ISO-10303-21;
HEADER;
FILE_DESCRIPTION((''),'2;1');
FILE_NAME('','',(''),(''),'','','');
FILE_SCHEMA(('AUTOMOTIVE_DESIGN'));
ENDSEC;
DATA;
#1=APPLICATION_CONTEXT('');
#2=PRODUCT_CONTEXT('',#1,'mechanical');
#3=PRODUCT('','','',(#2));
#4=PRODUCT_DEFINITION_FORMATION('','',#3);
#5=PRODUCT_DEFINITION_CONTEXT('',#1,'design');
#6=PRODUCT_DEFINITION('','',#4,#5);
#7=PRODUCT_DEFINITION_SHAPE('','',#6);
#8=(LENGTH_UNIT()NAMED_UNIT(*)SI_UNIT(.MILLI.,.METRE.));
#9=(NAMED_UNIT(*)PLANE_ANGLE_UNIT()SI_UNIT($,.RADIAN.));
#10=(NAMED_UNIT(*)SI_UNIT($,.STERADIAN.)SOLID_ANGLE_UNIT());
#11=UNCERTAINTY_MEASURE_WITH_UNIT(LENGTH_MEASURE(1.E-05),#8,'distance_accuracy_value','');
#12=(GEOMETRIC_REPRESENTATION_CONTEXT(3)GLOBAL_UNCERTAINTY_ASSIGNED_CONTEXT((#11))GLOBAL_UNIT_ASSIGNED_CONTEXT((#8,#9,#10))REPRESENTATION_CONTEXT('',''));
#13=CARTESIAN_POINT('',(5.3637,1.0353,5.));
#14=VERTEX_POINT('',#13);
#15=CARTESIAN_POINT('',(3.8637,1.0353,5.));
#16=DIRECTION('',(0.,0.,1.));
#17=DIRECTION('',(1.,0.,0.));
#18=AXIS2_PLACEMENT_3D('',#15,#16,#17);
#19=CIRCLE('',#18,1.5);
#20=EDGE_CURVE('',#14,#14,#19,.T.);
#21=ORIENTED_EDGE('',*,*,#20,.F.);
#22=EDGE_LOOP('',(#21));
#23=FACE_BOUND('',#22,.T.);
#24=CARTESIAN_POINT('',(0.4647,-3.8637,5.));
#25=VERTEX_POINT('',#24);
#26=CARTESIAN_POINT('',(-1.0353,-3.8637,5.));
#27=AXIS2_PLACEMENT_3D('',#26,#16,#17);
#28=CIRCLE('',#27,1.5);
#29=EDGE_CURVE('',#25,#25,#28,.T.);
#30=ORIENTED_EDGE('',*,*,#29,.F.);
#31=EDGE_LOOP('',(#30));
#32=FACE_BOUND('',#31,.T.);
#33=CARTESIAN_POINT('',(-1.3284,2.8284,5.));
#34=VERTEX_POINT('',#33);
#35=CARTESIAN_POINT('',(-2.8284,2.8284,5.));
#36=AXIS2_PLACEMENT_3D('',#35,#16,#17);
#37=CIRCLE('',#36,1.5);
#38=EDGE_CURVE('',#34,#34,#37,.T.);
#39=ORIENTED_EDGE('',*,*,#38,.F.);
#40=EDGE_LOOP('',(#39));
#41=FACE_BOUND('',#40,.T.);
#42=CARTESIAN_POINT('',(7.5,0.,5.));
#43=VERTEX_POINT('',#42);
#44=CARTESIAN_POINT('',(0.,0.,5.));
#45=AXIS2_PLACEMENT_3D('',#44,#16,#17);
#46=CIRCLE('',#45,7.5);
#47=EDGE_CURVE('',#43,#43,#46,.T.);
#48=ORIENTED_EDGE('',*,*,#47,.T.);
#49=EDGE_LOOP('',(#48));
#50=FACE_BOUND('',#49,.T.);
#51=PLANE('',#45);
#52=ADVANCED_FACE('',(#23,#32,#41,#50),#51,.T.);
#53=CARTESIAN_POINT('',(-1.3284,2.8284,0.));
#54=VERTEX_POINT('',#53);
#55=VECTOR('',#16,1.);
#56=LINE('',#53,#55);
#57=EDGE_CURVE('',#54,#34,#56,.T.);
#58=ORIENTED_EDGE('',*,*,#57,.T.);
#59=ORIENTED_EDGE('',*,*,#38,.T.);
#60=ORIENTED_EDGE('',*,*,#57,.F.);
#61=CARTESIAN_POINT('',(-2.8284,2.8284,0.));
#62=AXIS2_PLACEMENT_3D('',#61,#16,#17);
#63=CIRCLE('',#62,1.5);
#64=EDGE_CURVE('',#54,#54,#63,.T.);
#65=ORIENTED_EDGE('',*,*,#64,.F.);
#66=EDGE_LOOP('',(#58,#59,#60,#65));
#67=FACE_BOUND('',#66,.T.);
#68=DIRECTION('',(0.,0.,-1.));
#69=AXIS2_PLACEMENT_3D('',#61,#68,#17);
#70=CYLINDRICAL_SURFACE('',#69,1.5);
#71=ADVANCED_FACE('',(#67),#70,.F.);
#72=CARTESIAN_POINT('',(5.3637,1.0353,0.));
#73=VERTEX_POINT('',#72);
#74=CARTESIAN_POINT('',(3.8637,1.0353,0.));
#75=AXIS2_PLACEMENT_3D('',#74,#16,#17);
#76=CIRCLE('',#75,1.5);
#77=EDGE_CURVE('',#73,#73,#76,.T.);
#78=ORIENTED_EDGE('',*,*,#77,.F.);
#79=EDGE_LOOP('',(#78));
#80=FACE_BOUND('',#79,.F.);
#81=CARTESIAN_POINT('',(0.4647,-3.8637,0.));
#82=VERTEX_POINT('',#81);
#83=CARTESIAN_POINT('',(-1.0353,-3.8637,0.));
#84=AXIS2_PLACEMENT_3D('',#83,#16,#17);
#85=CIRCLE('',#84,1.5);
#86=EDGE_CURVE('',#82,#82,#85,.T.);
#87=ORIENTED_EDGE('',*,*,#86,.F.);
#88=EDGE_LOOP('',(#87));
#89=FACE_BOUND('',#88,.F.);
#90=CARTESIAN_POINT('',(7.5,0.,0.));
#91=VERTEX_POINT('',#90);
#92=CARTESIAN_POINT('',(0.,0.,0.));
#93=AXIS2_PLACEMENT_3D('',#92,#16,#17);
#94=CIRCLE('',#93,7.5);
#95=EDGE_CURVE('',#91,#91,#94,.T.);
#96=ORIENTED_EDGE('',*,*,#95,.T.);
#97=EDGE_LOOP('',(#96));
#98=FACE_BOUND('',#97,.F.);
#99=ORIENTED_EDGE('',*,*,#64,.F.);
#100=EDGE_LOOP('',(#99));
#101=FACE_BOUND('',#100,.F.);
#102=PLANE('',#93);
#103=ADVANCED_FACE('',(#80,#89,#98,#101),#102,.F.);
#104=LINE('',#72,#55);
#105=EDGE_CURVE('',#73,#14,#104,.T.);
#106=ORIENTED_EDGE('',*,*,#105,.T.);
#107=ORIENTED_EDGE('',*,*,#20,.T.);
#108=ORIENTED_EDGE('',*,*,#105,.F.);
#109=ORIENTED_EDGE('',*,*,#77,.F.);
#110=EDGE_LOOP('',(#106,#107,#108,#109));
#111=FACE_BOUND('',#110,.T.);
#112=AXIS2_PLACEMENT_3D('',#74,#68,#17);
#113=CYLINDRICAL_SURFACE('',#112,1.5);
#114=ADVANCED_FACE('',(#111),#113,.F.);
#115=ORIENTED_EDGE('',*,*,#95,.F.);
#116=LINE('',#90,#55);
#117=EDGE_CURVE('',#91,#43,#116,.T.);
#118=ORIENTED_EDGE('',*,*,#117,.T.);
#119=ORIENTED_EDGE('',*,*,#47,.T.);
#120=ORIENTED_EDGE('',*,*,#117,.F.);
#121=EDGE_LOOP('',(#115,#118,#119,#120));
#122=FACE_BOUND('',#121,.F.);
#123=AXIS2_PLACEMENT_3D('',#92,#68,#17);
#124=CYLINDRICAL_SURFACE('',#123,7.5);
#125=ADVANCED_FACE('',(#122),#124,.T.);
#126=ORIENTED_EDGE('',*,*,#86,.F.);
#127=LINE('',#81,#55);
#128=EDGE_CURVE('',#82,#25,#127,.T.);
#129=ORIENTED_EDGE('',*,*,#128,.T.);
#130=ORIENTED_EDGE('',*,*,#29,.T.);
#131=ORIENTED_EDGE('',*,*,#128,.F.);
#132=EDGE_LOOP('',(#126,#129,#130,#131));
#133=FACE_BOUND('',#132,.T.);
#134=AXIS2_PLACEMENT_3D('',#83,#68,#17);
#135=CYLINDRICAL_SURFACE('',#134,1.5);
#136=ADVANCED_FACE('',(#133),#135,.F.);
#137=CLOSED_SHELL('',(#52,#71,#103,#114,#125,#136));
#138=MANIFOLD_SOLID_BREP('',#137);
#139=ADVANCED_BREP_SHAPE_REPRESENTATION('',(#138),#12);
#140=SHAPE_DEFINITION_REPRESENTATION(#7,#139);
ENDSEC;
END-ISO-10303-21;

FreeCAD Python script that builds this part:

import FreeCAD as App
import Part
import Sketcher

V = App.Vector
Q = App.Units.Quantity

doc = App.newDocument("Part")
params = doc.addObject("Spreadsheet::Sheet", "Params")
for row, (alias, value) in enumerate([
    ("sketch1_diameter", "15 mm"),
    ("sketch1_diameter2", "3 mm"),
    ("pad1_length", "5 mm"),
], start=1):
    params.set(f"A{row}", alias)
    params.set(f"B{row}", "=" + value)
    params.setAlias(f"B{row}", alias)

body = doc.addObject("PartDesign::Body", "Body")

# Sketch on XY plane
sketch1 = doc.addObject("Sketcher::SketchObject", "Sketch")
body.addObject(sketch1)
sketch1.AttachmentSupport = (doc.XY_Plane, [""])
sketch1.MapMode = "FlatFace"
sketch1.addGeometry(Part.Circle(V(0, 0, 0), V(0, 0, 1), 7.5), False)
sketch1.addGeometry(Part.Circle(V(-1, -3.9, 0), V(0, 0, 1), 1.5), False)
sketch1.addGeometry(Part.Circle(V(-2.8, 2.8, 0), V(0, 0, 1), 1.5), False)
sketch1.addGeometry(Part.Circle(V(3.9, 1, 0), V(0, 0, 1), 1.5), False)
sketch1.addConstraint(Sketcher.Constraint("Coincident", 0, 3, -1, 1))
sketch1.addConstraint(Sketcher.Constraint("Equal", 1, 2))
sketch1.addConstraint(Sketcher.Constraint("Equal", 2, 3))
sketch1.addConstraint(Sketcher.Constraint("Diameter", 0, Q("15 mm")))
sketch1.addConstraint(Sketcher.Constraint("Diameter", 1, Q("3 mm")))
sketch1.addConstraint(Sketcher.Constraint("DistanceX", 2, 3, 1, 3, Q("1.793 mm")))
sketch1.addConstraint(Sketcher.Constraint("DistanceY", 1, 3, 2, 3, Q("6.692 mm")))
sketch1.addConstraint(Sketcher.Constraint("DistanceX", 2, 3, 3, 3, Q("6.692 mm")))
sketch1.addConstraint(Sketcher.Constraint("DistanceY", 3, 3, 2, 3, Q("1.793 mm")))
sketch1.addConstraint(Sketcher.Constraint("DistanceX", 1, 3, -1, 1, Q("1.0353 mm")))
sketch1.addConstraint(Sketcher.Constraint("DistanceY", 1, 3, -1, 1, Q("3.8637 mm")))
sketch1.setExpression("Constraints[3]", "Params.sketch1_diameter")
sketch1.setExpression("Constraints[4]", "Params.sketch1_diameter2")
pad1 = doc.addObject("PartDesign::Pad", "Pad")
body.addObject(pad1)
pad1.Profile = sketch1
pad1.setExpression("Length", "Params.pad1_length")

doc.recompute()
